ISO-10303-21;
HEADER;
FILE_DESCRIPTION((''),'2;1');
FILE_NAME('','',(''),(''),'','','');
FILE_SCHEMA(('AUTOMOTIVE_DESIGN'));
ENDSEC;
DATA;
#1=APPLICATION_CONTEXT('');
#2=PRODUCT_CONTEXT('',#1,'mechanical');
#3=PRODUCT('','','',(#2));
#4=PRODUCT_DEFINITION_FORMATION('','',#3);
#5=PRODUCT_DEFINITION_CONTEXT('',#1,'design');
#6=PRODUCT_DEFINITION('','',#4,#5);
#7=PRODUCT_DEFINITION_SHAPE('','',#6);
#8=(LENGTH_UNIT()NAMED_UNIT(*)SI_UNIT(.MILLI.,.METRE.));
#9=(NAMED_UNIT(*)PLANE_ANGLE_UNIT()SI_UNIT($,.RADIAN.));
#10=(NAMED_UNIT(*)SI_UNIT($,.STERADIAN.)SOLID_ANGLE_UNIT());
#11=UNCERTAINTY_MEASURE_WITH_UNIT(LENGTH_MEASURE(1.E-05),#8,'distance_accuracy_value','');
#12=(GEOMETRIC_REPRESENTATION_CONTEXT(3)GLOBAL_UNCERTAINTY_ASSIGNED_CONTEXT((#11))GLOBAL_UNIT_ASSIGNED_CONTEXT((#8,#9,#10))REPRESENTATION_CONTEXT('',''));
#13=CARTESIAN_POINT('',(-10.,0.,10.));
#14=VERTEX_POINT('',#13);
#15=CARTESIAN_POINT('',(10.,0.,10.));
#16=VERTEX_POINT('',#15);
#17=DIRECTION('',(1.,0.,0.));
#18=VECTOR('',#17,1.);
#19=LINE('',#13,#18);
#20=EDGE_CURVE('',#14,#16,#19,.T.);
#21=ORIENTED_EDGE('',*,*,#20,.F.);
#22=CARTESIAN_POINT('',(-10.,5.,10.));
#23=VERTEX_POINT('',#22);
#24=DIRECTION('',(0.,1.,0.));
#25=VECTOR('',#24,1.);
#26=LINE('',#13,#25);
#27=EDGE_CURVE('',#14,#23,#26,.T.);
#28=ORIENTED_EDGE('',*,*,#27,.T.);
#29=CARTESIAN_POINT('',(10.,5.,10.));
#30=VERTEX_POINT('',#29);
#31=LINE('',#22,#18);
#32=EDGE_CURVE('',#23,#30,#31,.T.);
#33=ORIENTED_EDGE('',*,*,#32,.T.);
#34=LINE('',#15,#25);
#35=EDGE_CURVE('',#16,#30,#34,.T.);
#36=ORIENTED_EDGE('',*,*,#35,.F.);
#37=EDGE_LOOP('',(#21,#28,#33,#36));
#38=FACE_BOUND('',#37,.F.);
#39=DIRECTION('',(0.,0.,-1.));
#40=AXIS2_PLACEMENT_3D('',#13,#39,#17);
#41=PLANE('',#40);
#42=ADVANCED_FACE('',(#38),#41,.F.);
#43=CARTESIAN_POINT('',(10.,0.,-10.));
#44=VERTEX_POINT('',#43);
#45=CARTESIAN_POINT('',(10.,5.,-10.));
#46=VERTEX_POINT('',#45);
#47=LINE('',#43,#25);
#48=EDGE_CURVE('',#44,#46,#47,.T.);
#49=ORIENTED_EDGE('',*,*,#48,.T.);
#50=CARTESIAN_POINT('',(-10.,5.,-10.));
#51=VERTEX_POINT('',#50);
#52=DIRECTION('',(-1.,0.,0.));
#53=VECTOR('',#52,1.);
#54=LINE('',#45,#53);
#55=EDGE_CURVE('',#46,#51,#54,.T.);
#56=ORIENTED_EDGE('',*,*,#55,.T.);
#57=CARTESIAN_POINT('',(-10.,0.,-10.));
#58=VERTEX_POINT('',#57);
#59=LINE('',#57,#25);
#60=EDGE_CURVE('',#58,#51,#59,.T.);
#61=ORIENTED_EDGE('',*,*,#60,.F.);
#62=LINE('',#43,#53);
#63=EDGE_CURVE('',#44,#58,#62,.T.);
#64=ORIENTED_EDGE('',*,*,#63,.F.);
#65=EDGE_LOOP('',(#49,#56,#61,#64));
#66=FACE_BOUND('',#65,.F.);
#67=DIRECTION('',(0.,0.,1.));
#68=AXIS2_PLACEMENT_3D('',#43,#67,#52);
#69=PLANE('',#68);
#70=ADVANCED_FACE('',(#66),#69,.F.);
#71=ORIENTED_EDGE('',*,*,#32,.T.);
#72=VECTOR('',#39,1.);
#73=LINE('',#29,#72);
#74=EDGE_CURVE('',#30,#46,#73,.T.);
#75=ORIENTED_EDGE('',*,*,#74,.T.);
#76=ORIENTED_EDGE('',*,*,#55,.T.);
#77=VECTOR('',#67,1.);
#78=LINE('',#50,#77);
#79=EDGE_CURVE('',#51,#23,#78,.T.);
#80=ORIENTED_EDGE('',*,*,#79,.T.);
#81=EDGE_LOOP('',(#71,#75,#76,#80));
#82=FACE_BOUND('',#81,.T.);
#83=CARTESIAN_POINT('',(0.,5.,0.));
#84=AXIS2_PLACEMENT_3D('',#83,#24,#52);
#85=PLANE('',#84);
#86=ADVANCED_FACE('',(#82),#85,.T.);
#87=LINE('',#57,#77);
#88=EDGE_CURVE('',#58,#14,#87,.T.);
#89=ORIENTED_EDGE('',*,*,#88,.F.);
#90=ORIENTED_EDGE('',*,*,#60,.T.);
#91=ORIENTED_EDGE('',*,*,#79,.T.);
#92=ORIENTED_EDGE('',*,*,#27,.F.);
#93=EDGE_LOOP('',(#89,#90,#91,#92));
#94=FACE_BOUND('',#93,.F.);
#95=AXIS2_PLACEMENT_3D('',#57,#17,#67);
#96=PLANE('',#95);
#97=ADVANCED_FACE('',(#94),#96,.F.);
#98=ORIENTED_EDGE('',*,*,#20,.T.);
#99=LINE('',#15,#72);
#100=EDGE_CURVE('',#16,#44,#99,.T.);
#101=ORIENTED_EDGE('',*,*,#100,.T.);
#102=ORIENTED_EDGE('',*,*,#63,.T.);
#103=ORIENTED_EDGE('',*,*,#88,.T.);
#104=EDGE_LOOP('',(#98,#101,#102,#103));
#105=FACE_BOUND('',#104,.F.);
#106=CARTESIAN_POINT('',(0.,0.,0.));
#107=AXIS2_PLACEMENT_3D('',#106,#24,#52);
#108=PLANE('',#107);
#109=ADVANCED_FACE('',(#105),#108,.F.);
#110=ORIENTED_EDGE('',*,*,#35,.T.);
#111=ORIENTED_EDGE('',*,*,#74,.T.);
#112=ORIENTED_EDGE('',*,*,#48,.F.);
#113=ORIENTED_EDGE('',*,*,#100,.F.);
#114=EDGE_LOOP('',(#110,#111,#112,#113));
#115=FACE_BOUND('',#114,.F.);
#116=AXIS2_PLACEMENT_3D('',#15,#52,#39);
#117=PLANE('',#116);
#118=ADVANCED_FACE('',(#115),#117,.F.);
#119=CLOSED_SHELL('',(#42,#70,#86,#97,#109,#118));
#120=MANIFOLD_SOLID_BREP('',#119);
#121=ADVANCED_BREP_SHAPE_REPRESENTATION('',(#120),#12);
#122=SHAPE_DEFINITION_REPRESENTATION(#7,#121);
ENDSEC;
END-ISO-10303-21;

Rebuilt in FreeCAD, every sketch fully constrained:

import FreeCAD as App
import Part
import Sketcher
Q = App.Units.Quantity

doc = App.newDocument("Part")
body = doc.addObject("PartDesign::Body", "Body")

# Sketch on XZ plane
sketch1 = doc.addObject("Sketcher::SketchObject", "Sketch")
body.addObject(sketch1)
sketch1.AttachmentSupport = (doc.XZ_Plane, [""])
sketch1.MapMode = "FlatFace"
sketch1.addGeometry([
    Part.LineSegment(App.Vector(10, 10, 0), App.Vector(10, -10, 0)),
    Part.LineSegment(App.Vector(10, -10, 0), App.Vector(-10, -10, 0)),
    Part.LineSegment(App.Vector(-10, -10, 0), App.Vector(-10, 10, 0)),
    Part.LineSegment(App.Vector(-10, 10, 0), App.Vector(10, 10, 0)),
], False)
sketch1.addConstraint([
    Sketcher.Constraint("Coincident", 0, 2, 1, 1),
    Sketcher.Constraint("Coincident", 1, 2, 2, 1),
    Sketcher.Constraint("Coincident", 2, 2, 3, 1),
    Sketcher.Constraint("Coincident", 3, 2, 0, 1),
    Sketcher.Constraint("Vertical", 0),
    Sketcher.Constraint("Horizontal", 1),
    Sketcher.Constraint("Vertical", 2),
    Sketcher.Constraint("Horizontal", 3),
    Sketcher.Constraint("Symmetric", 0, 2, 2, 2, -1, 1),
    Sketcher.Constraint("Equal", 3, 0),
    Sketcher.Constraint("DistanceX", 1, 2, 1, 1, Q("20 mm")),
])
pad1 = doc.addObject("PartDesign::Pad", "Pad")
body.addObject(pad1)
pad1.Profile = sketch1
pad1.Length = 5
pad1.Reversed = True

doc.recompute()
